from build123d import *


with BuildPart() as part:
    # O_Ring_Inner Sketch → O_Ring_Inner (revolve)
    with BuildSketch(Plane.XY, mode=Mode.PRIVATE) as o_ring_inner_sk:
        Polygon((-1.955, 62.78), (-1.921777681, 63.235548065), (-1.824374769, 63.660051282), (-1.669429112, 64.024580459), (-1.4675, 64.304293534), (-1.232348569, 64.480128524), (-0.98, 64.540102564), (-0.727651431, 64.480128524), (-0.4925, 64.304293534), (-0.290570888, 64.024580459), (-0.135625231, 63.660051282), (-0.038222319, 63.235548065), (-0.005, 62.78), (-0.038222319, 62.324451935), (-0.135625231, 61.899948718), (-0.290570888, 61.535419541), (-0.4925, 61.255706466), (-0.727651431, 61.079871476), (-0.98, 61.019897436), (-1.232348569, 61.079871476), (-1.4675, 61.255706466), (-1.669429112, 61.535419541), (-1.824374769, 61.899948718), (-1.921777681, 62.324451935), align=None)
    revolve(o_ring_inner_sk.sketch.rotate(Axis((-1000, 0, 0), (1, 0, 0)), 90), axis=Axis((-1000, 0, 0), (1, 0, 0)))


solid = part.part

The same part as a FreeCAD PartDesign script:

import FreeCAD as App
import Part
import Sketcher

V = App.Vector

doc = App.newDocument("Part")
params = doc.addObject("Spreadsheet::Sheet", "Params")
for row, (alias, value) in enumerate([
    ("revolution_angle", "360 deg"),
], start=1):
    params.set(f"A{row}", alias)
    params.set(f"B{row}", "=" + value)
    params.setAlias(f"B{row}", alias)

body = doc.addObject("PartDesign::Body", "Body")

# Sketch on XY plane
sketch1 = body.newObject("Sketcher::SketchObject", "Sketch")
sketch1.AttachmentSupport = (doc.getObject("XY_Plane"), [""])
sketch1.MapMode = "FlatFace"
sketch1.addGeometry(Part.LineSegment(V(-1.92, 63.24, 0), V(-1.96, 62.78, 0)), False)
sketch1.addGeometry(Part.LineSegment(V(-1.96, 62.78, 0), V(-1.92, 62.32, 0)), False)
sketch1.addGeometry(Part.LineSegment(V(-1.92, 62.32, 0), V(-1.82, 61.9, 0)), False)
sketch1.addGeometry(Part.LineSegment(V(-1.82, 61.9, 0), V(-1.67, 61.54, 0)), False)
sketch1.addGeometry(Part.LineSegment(V(-1.67, 61.54, 0), V(-1.47, 61.26, 0)), False)
sketch1.addGeometry(Part.LineSegment(V(-1.47, 61.26, 0), V(-1.23, 61.08, 0)), False)
sketch1.addGeometry(Part.LineSegment(V(-1.23, 61.08, 0), V(-0.98, 61.02, 0)), False)
sketch1.addGeometry(Part.LineSegment(V(-0.98, 61.02, 0), V(-0.73, 61.08, 0)), False)
sketch1.addGeometry(Part.LineSegment(V(-0.73, 61.08, 0), V(-0.49, 61.26, 0)), False)
sketch1.addGeometry(Part.LineSegment(V(-0.49, 61.26, 0), V(-0.29, 61.54, 0)), False)
sketch1.addGeometry(Part.LineSegment(V(-0.29, 61.54, 0), V(-0.14, 61.9, 0)), False)
sketch1.addGeometry(Part.LineSegment(V(-0.14, 61.9, 0), V(-0.04, 62.32, 0)), False)
sketch1.addGeometry(Part.LineSegment(V(-0.04, 62.32, 0), V(-0.01, 62.78, 0)), False)
sketch1.addGeometry(Part.LineSegment(V(-0.01, 62.78, 0), V(-0.04, 63.24, 0)), False)
sketch1.addGeometry(Part.LineSegment(V(-0.04, 63.24, 0), V(-0.14, 63.66, 0)), False)
sketch1.addGeometry(Part.LineSegment(V(-0.14, 63.66, 0), V(-0.29, 64.02, 0)), False)
sketch1.addGeometry(Part.LineSegment(V(-0.29, 64.02, 0), V(-0.49, 64.3, 0)), False)
sketch1.addGeometry(Part.LineSegment(V(-0.49, 64.3, 0), V(-0.73, 64.48, 0)), False)
sketch1.addGeometry(Part.LineSegment(V(-0.73, 64.48, 0), V(-0.98, 64.54, 0)), False)
sketch1.addGeometry(Part.LineSegment(V(-0.98, 64.54, 0), V(-1.23, 64.48, 0)), False)
sketch1.addGeometry(Part.LineSegment(V(-1.23, 64.48, 0), V(-1.47, 64.3, 0)), False)
sketch1.addGeometry(Part.LineSegment(V(-1.47, 64.3, 0), V(-1.67, 64.02, 0)), False)
sketch1.addGeometry(Part.LineSegment(V(-1.67, 64.02, 0), V(-1.82, 63.66, 0)), False)
sketch1.addGeometry(Part.LineSegment(V(-1.82, 63.66, 0), V(-1.92, 63.24, 0)), False)
sketch1.addConstraint(Sketcher.Constraint("Coincident", 0, 2, 1, 1))
sketch1.addConstraint(Sketcher.Constraint("Coincident", 1, 2, 2, 1))
sketch1.addConstraint(Sketcher.Constraint("Coincident", 2, 2, 3, 1))
sketch1.addConstraint(Sketcher.Constraint("Coincident", 3, 2, 4, 1))
sketch1.addConstraint(Sketcher.Constraint("Coincident", 4, 2, 5, 1))
sketch1.addConstraint(Sketcher.Constraint("Coincident", 5, 2, 6, 1))
sketch1.addConstraint(Sketcher.Constraint("Coincident", 6, 2, 7, 1))
sketch1.addConstraint(Sketcher.Constraint("Coincident", 7, 2, 8, 1))
sketch1.addConstraint(Sketcher.Constraint("Coincident", 8, 2, 9, 1))
sketch1.addConstraint(Sketcher.Constraint("Coincident", 9, 2, 10, 1))
sketch1.addConstraint(Sketcher.Constraint("Coincident", 10, 2, 11, 1))
sketch1.addConstraint(Sketcher.Constraint("Coincident", 11, 2, 12, 1))
sketch1.addConstraint(Sketcher.Constraint("Coincident", 12, 2, 13, 1))
sketch1.addConstraint(Sketcher.Constraint("Coincident", 13, 2, 14, 1))
sketch1.addConstraint(Sketcher.Constraint("Coincident", 14, 2, 15, 1))
sketch1.addConstraint(Sketcher.Constraint("Coincident", 15, 2, 16, 1))
sketch1.addConstraint(Sketcher.Constraint("Coincident", 16, 2, 17, 1))
sketch1.addConstraint(Sketcher.Constraint("Coincident", 17, 2, 18, 1))
sketch1.addConstraint(Sketcher.Constraint("Coincident", 18, 2, 19, 1))
sketch1.addConstraint(Sketcher.Constraint("Coincident", 19, 2, 20, 1))
sketch1.addConstraint(Sketcher.Constraint("Coincident", 20, 2, 21, 1))
sketch1.addConstraint(Sketcher.Constraint("Coincident", 21, 2, 22, 1))
sketch1.addConstraint(Sketcher.Constraint("Coincident", 22, 2, 23, 1))
sketch1.addConstraint(Sketcher.Constraint("Coincident", 23, 2, 0, 1))
sketch1.addConstraint(Sketcher.Constraint("Parallel", 0, 12))
sketch1.addConstraint(Sketcher.Constraint("Parallel", 1, 13))
sketch1.addConstraint(Sketcher.Constraint("Parallel", 2, 14))
sketch1.addConstraint(Sketcher.Constraint("Parallel", 3, 15))
sketch1.addConstraint(Sketcher.Constraint("Parallel", 4, 16))
sketch1.addConstraint(Sketcher.Constraint("Parallel", 5, 17))
sketch1.addConstraint(Sketcher.Constraint("Parallel", 6, 18))
sketch1.addConstraint(Sketcher.Constraint("Parallel", 7, 19))
sketch1.addConstraint(Sketcher.Constraint("Parallel", 8, 20))
sketch1.addConstraint(Sketcher.Constraint("Parallel", 9, 21))
sketch1.addConstraint(Sketcher.Constraint("Parallel", 10, 22))
sketch1.addConstraint(Sketcher.Constraint("Parallel", 11, 23))
sketch1.addConstraint(Sketcher.Constraint("Horizontal", 5, 2, 7, 2))
sketch1.addConstraint(Sketcher.Constraint("Horizontal", 4, 2, 8, 2))
sketch1.addConstraint(Sketcher.Constraint("Horizontal", 3, 2, 9, 2))
sketch1.addConstraint(Sketcher.Constraint("Horizontal", 2, 2, 10, 2))
sketch1.addConstraint(Sketcher.Constraint("Horizontal", 1, 2, 11, 2))
sketch1.addConstraint(Sketcher.Constraint("Horizontal", 0, 2, 12, 2))
sketch1.addConstraint(Sketcher.Constraint("Horizontal", 17, 2, 19, 2))
sketch1.addConstraint(Sketcher.Constraint("Horizontal", 16, 2, 20, 2))
sketch1.addConstraint(Sketcher.Constraint("Horizontal", 15, 2, 21, 2))
sketch1.addConstraint(Sketcher.Constraint("Horizontal", 14, 2, 22, 2))
sketch1.addConstraint(Sketcher.Constraint("Horizontal", 13, 2, 23, 2))
sketch1.addConstraint(Sketcher.Constraint("Vertical", 11, 2, 13, 2))
sketch1.addConstraint(Sketcher.Constraint("Vertical", 10, 2, 14, 2))
sketch1.addConstraint(Sketcher.Constraint("Vertical", 9, 2, 15, 2))
sketch1.addConstraint(Sketcher.Constraint("Vertical", 8, 2, 16, 2))
sketch1.addConstraint(Sketcher.Constraint("Vertical", 7, 2, 17, 2))
sketch1.addConstraint(Sketcher.Constraint("Vertical", 6, 2, 18, 2))
sketch1.addConstraint(Sketcher.Constraint("Vertical", 5, 2, 19, 2))
sketch1.addConstraint(Sketcher.Constraint("Vertical", 4, 2, 20, 2))
sketch1.addConstraint(Sketcher.Constraint("Vertical", 3, 2, 21, 2))
sketch1.addConstraint(Sketcher.Constraint("Vertical", 2, 2, 22, 2))
sketch1.addConstraint(Sketcher.Constraint("Vertical", 1, 2, 23, 2))
sketch1.addConstraint(Sketcher.Constraint("DistanceY", -1, 1, 0, 2, 62.78))
sketch1.addConstraint(Sketcher.Constraint("DistanceX", 6, 2, -1, 1, 0.98))
sketch1.addConstraint(Sketcher.Constraint("DistanceX", 0, 2, -1, 1, 1.955))
sketch1.addConstraint(Sketcher.Constraint("DistanceX", 4, 2, 8, 2, 0.975))
sketch1.addConstraint(Sketcher.Constraint("DistanceY", 10, 2, 13, 2, 1.335599))
sketch1.addConstraint(Sketcher.Constraint("DistanceY", -1, 1, 1, 2, 62.324452))
sketch1.addConstraint(Sketcher.Constraint("DistanceX", 3, 2, -1, 1, 1.669429))
sketch1.addConstraint(Sketcher.Constraint("DistanceY", -1, 1, 3, 2, 61.53542))
sketch1.addConstraint(Sketcher.Constraint("DistanceX", 5, 2, -1, 1, 1.232349))
sketch1.addConstraint(Sketcher.Constraint("DistanceY", -1, 1, 5, 2, 61.079871))
sketch1.addConstraint(Sketcher.Constraint("DistanceX", 1, 2, 3, 2, 0.252349))
sketch1.addConstraint(Sketcher.Constraint("DistanceY", 6, 2, 4, 2, 0.235809))
sketch1.addConstraint(Sketcher.Constraint("DistanceY", 6, 2, 2, 2, 0.880051))
sketch1.addConstraint(Sketcher.Constraint("Distance", 2, 0.435535))
revolution = body.newObject("PartDesign::Revolution", "Revolution")
revolution.Profile = sketch1
revolution.ReferenceAxis = (sketch1, ["H_Axis"])
revolution.setExpression("Angle", "Params.revolution_angle")

doc.recompute()
